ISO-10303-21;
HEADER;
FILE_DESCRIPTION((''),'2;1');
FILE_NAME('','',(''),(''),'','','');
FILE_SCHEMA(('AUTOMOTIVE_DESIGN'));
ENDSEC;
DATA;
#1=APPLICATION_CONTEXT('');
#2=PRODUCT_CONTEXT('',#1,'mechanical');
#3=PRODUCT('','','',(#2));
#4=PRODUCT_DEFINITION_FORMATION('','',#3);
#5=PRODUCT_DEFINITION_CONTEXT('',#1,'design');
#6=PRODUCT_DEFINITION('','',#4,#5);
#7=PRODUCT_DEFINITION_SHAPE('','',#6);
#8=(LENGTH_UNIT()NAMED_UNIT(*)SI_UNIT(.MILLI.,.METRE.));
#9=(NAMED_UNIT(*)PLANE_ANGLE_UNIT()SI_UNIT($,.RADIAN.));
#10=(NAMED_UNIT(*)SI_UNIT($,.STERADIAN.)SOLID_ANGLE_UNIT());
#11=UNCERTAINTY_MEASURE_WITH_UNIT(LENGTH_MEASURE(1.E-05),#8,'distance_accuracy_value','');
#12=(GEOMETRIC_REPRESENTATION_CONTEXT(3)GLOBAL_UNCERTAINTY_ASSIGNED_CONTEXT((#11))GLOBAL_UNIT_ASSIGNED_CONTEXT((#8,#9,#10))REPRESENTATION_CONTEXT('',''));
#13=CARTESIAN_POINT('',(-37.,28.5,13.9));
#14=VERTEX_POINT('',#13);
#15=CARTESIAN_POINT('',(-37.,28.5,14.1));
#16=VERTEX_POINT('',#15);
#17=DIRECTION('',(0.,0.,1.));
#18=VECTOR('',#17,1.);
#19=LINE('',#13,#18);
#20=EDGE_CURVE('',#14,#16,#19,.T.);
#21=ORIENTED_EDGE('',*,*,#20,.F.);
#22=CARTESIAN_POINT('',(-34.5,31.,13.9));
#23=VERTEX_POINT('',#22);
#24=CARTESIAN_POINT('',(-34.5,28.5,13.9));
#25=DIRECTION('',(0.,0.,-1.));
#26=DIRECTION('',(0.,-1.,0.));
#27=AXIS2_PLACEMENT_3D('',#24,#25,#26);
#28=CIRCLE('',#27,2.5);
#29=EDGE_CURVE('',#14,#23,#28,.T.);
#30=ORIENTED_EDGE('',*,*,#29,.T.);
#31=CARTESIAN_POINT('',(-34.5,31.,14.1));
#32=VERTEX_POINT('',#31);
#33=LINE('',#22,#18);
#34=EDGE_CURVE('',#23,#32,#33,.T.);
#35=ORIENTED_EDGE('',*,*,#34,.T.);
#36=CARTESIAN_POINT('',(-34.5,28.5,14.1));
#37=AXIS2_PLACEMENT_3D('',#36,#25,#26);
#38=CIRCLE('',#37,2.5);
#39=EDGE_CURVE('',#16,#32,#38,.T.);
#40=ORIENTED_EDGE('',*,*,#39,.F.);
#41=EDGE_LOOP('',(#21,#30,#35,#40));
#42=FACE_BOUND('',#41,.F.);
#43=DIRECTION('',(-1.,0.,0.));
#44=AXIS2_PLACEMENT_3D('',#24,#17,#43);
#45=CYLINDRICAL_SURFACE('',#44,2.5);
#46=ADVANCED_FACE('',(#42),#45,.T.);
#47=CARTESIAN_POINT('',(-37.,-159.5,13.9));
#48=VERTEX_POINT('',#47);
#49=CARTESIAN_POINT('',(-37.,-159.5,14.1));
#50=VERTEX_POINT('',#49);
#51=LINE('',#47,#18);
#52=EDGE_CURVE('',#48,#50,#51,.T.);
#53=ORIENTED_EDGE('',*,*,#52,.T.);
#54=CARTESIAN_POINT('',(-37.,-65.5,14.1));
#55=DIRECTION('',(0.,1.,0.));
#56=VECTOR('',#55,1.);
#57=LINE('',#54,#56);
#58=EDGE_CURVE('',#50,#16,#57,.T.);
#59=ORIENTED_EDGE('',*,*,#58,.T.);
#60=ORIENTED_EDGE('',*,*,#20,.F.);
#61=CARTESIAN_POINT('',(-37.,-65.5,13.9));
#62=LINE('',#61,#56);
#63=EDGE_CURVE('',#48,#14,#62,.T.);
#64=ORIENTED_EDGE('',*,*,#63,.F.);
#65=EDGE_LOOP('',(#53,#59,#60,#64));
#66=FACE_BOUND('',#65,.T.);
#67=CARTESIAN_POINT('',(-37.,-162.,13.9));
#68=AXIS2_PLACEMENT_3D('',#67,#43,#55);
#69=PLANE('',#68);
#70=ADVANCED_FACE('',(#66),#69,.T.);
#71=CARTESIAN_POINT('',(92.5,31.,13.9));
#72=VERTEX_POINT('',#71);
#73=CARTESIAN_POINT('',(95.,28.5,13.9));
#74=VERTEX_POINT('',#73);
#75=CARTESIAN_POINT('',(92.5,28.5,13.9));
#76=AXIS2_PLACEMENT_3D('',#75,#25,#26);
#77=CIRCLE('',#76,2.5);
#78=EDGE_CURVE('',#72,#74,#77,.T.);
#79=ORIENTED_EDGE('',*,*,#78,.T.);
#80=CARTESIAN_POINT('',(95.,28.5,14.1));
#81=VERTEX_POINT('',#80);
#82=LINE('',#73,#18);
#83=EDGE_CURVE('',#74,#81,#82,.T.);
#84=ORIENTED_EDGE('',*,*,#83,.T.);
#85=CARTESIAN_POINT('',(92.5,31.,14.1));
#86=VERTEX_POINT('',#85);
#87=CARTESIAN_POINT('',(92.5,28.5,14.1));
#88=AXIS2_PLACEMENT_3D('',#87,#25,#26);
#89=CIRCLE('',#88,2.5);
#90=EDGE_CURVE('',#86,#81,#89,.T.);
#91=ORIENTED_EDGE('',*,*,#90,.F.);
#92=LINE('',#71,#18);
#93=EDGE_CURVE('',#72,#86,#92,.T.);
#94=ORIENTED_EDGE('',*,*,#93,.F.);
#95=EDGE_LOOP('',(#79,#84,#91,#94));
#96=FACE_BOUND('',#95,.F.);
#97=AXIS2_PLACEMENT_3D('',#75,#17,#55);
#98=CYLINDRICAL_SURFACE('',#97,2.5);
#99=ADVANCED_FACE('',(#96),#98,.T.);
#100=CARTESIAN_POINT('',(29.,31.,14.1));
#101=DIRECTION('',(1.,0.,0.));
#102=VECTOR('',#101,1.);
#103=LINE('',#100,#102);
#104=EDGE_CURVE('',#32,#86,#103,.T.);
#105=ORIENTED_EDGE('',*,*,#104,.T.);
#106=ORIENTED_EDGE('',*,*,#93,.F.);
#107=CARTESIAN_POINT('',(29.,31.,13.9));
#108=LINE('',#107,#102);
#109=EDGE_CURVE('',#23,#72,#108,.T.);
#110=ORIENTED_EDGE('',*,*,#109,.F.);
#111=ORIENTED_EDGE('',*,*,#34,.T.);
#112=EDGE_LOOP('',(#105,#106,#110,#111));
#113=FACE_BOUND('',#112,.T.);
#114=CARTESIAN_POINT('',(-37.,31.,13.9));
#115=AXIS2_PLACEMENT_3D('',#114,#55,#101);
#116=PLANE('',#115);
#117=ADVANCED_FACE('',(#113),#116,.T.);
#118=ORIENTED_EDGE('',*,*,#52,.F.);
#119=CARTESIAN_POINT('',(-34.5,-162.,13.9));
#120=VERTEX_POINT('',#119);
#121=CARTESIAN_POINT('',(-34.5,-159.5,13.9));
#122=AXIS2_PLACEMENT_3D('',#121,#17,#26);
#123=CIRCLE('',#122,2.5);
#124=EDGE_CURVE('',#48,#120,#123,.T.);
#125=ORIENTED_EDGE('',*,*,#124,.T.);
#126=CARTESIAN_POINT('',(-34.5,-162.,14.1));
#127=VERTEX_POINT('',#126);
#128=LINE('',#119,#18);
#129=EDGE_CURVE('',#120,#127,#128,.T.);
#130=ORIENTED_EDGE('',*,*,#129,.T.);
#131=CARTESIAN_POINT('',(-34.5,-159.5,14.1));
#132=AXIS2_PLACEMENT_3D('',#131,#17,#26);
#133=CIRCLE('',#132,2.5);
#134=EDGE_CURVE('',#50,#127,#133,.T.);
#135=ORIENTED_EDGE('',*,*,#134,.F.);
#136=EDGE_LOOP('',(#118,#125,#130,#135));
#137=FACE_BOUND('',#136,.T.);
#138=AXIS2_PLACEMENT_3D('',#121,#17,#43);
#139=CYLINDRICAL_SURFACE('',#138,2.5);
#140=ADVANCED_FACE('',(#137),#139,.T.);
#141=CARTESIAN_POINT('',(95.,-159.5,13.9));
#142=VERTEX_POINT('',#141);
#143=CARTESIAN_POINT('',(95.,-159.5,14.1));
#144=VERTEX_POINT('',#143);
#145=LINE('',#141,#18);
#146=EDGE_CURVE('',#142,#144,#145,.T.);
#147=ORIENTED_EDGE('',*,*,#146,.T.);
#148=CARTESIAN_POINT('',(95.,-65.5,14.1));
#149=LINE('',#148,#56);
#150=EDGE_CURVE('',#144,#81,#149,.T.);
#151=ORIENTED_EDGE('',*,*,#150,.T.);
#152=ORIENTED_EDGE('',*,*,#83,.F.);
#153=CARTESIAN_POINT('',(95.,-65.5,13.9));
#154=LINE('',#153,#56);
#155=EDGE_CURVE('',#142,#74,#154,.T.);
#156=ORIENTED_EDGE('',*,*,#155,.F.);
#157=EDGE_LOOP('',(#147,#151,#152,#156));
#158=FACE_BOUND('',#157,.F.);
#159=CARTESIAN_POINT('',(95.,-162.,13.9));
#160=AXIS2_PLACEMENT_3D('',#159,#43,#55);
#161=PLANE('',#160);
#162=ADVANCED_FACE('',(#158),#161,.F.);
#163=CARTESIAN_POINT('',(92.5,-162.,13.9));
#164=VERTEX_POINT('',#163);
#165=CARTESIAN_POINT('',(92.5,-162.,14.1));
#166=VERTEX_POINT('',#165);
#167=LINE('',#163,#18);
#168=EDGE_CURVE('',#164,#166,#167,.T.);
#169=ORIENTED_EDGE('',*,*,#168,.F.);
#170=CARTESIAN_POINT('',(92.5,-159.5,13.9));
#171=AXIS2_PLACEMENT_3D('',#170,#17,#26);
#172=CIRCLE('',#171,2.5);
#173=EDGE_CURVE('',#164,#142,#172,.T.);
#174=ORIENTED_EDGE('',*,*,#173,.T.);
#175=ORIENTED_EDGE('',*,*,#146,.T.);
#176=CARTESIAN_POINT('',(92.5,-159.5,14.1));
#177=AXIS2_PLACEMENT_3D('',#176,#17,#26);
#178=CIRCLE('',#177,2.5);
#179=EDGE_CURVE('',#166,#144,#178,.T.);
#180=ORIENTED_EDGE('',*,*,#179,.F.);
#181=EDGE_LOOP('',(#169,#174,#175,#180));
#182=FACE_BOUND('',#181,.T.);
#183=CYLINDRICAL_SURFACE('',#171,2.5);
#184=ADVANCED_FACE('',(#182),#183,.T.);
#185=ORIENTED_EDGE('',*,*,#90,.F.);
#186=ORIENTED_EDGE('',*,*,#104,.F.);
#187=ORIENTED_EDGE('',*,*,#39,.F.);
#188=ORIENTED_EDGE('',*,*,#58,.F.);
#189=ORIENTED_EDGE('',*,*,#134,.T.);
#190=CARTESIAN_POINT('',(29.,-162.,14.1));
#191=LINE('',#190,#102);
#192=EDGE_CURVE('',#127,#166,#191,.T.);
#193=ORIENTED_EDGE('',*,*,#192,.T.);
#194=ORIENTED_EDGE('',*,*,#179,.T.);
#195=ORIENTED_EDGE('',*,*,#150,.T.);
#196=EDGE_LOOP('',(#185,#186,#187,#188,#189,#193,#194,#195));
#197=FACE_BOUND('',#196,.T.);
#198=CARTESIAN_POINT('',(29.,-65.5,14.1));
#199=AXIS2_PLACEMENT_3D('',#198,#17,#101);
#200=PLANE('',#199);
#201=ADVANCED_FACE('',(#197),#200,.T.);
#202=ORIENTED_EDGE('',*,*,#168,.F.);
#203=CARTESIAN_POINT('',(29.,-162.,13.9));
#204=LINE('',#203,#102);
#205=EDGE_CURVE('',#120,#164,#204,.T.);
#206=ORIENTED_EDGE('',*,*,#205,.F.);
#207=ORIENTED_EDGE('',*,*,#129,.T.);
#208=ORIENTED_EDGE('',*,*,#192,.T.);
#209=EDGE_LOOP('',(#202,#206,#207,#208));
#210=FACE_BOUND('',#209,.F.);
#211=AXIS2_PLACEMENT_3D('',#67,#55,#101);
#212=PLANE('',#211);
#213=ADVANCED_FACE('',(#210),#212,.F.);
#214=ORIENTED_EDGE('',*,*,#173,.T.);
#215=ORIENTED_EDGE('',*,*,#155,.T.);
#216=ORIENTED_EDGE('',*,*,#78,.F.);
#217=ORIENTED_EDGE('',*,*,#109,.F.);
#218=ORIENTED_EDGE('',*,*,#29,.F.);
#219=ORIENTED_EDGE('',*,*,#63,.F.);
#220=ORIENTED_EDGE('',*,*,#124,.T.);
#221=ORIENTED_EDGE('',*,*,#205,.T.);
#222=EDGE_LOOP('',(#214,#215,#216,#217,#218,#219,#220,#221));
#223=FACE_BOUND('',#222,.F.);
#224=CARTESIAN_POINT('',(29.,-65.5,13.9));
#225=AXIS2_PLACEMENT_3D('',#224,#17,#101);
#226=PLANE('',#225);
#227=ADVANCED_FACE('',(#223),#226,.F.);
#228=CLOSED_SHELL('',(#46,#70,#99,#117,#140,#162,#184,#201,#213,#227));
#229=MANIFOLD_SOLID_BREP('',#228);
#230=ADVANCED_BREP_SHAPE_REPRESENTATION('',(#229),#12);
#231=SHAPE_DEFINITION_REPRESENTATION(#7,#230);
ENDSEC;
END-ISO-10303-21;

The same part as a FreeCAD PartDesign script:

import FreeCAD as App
import Part
import Sketcher
Q = App.Units.Quantity


def edges_at(feature, points):
    """Names of the edges that pass closest to the given points."""
    edges = feature.Shape.Edges
    near = lambda p: min(range(len(edges)), key=lambda i: edges[i].distToShape(Part.Vertex(*p))[0])
    return sorted({f"Edge{near(p) + 1}" for p in points})

doc = App.newDocument("Part")
params = doc.addObject("Spreadsheet::Sheet", "Params")
for row, (alias, value) in enumerate([
    ("sketch1_width", "132 mm"),
    ("sketch1_height", "193 mm"),
    ("pad1_length", "0.2 mm"),
    ("fillet_radius", "2.5 mm"),
    ("fillet2_radius", "2.5 mm"),
    ("fillet3_radius", "2.5 mm"),
    ("fillet4_radius", "2.5 mm"),
], start=1):
    params.set(f"A{row}", alias)
    params.set(f"B{row}", "=" + value)
    params.setAlias(f"B{row}", alias)

body = doc.addObject("PartDesign::Body", "Body")

sketch1 = doc.addObject("Sketcher::SketchObject", "Sketch")
body.addObject(sketch1)
sketch1.AttachmentSupport = (doc.XY_Plane, [""])
sketch1.MapMode = "FlatFace"
sketch1.AttachmentOffset = App.Placement(App.Vector(0, 0, 13.9), App.Rotation())
sketch1.addGeometry(Part.LineSegment(App.Vector(-37, 31, 0), App.Vector(-37, -162, 0)), False)
sketch1.addGeometry(Part.LineSegment(App.Vector(-37, -162, 0), App.Vector(95, -162, 0)), False)
sketch1.addGeometry(Part.LineSegment(App.Vector(95, -162, 0), App.Vector(95, 31, 0)), False)
sketch1.addGeometry(Part.LineSegment(App.Vector(95, 31, 0), App.Vector(-37, 31, 0)), False)
sketch1.addConstraint(Sketcher.Constraint("Coincident", 0, 2, 1, 1))
sketch1.addConstraint(Sketcher.Constraint("Coincident", 1, 2, 2, 1))
sketch1.addConstraint(Sketcher.Constraint("Coincident", 2, 2, 3, 1))
sketch1.addConstraint(Sketcher.Constraint("Coincident", 3, 2, 0, 1))
sketch1.addConstraint(Sketcher.Constraint("Vertical", 0))
sketch1.addConstraint(Sketcher.Constraint("Horizontal", 1))
sketch1.addConstraint(Sketcher.Constraint("Vertical", 2))
sketch1.addConstraint(Sketcher.Constraint("Horizontal", 3))
sketch1.addConstraint(Sketcher.Constraint("DistanceX", 1, 1, 1, 2, Q("132 mm")))
sketch1.addConstraint(Sketcher.Constraint("DistanceY", 0, 2, 0, 1, Q("193 mm")))
sketch1.addConstraint(Sketcher.Constraint("DistanceX", 0, 2, -1, 1, Q("37 mm")))
sketch1.addConstraint(Sketcher.Constraint("DistanceY", 0, 2, -1, 1, Q("162 mm")))
sketch1.setExpression("Constraints[8]", "Params.sketch1_width")
sketch1.setExpression("Constraints[9]", "Params.sketch1_height")
pad1 = doc.addObject("PartDesign::Pad", "Pad")
body.addObject(pad1)
pad1.Profile = sketch1
pad1.setExpression("Length", "Params.pad1_length")
doc.recompute()

fillet = doc.addObject("PartDesign::Fillet", "Fillet")
body.addObject(fillet)
fillet.Base = (pad1, edges_at(pad1, [(-37, 31, 14)]))
fillet.setExpression("Radius", "Params.fillet_radius")
doc.recompute()

fillet2 = doc.addObject("PartDesign::Fillet", "Fillet001")
body.addObject(fillet2)
fillet2.Base = (fillet, edges_at(fillet, [(95, 31, 14)]))
fillet2.setExpression("Radius", "Params.fillet2_radius")
doc.recompute()

fillet3 = doc.addObject("PartDesign::Fillet", "Fillet002")
body.addObject(fillet3)
fillet3.Base = (fillet2, edges_at(fillet2, [(-37, -162, 14)]))
fillet3.setExpression("Radius", "Params.fillet3_radius")
doc.recompute()

fillet4 = doc.addObject("PartDesign::Fillet", "Fillet003")
body.addObject(fillet4)
fillet4.Base = (fillet3, edges_at(fillet3, [(95, -162, 14)]))
fillet4.setExpression("Radius", "Params.fillet4_radius")

doc.recompute()
